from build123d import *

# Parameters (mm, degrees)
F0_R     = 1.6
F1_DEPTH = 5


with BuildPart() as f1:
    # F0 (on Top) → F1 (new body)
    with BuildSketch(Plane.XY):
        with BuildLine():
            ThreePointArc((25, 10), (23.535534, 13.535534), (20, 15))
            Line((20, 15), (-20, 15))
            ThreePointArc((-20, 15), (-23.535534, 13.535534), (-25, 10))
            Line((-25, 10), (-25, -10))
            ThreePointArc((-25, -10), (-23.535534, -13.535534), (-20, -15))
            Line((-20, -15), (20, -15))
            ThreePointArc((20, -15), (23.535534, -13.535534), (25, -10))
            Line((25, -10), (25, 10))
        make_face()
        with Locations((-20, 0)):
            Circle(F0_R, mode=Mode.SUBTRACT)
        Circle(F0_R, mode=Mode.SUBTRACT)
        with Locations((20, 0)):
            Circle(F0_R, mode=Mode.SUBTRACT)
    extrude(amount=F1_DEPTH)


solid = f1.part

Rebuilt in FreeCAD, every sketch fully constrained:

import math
import FreeCAD as App
import Part
import Sketcher

V = App.Vector

doc = App.newDocument("Part")
body = doc.addObject("PartDesign::Body", "Body")

# Sketch on XY plane
sketch1 = doc.addObject("Sketcher::SketchObject", "Sketch")
body.addObject(sketch1)
sketch1.AttachmentSupport = (doc.XY_Plane, [""])
sketch1.MapMode = "FlatFace"
sketch1.addGeometry(Part.ArcOfCircle(Part.Circle(V(20, 10, 0), V(0, 0, 1), 5), math.radians(0), math.radians(90)), False)
sketch1.addGeometry(Part.LineSegment(V(20, 15, 0), V(-20, 15, 0)), False)
sketch1.addGeometry(Part.ArcOfCircle(Part.Circle(V(-20, 10, 0), V(0, 0, 1), 5), math.radians(90), math.radians(180)), False)
sketch1.addGeometry(Part.LineSegment(V(-25, 10, 0), V(-25, -10, 0)), False)
sketch1.addGeometry(Part.ArcOfCircle(Part.Circle(V(-20, -10, 0), V(0, 0, 1), 5), math.radians(180), math.radians(270)), False)
sketch1.addGeometry(Part.LineSegment(V(-20, -15, 0), V(20, -15, 0)), False)
sketch1.addGeometry(Part.ArcOfCircle(Part.Circle(V(20, -10, 0), V(0, 0, 1), 5), math.radians(-90), math.radians(0)), False)
sketch1.addGeometry(Part.LineSegment(V(25, -10, 0), V(25, 10, 0)), False)
sketch1.addGeometry(Part.Circle(V(-20, 0, 0), V(0, 0, 1), 1.6), False)
sketch1.addGeometry(Part.Circle(V(0, 0, 0), V(0, 0, 1), 1.6), False)
sketch1.addGeometry(Part.Circle(V(20, 0, 0), V(0, 0, 1), 1.6), False)
sketch1.addConstraint(Sketcher.Constraint("Tangent", 0, 2, 1, 1))
sketch1.addConstraint(Sketcher.Constraint("Tangent", 1, 2, 2, 1))
sketch1.addConstraint(Sketcher.Constraint("Tangent", 2, 2, 3, 1))
sketch1.addConstraint(Sketcher.Constraint("Tangent", 3, 2, 4, 1))
sketch1.addConstraint(Sketcher.Constraint("Tangent", 4, 2, 5, 1))
sketch1.addConstraint(Sketcher.Constraint("Tangent", 5, 2, 6, 1))
sketch1.addConstraint(Sketcher.Constraint("Tangent", 6, 2, 7, 1))
sketch1.addConstraint(Sketcher.Constraint("Tangent", 7, 2, 0, 1))
sketch1.addConstraint(Sketcher.Constraint("Horizontal", 1))
sketch1.addConstraint(Sketcher.Constraint("Vertical", 3))
sketch1.addConstraint(Sketcher.Constraint("Horizontal", 5))
sketch1.addConstraint(Sketcher.Constraint("Vertical", 7))
sketch1.addConstraint(Sketcher.Constraint("Coincident", 9, 3, -1, 1))
sketch1.addConstraint(Sketcher.Constraint("Equal", 0, 2))
sketch1.addConstraint(Sketcher.Constraint("Equal", 2, 4))
sketch1.addConstraint(Sketcher.Constraint("Equal", 4, 6))
sketch1.addConstraint(Sketcher.Constraint("Equal", 8, 9))
sketch1.addConstraint(Sketcher.Constraint("Equal", 9, 10))
sketch1.addConstraint(Sketcher.Constraint("Symmetric", 0, 3, 4, 3, -1, 1))
sketch1.addConstraint(Sketcher.Constraint("Symmetric", 8, 3, 10, 3, -1, 1))
sketch1.addConstraint(Sketcher.Constraint("PointOnObject", 8, 3, -1))
sketch1.addConstraint(Sketcher.Constraint("Vertical", 4, 3, 8, 3))
sketch1.addConstraint(Sketcher.Constraint("Radius", 0, 5.0))
sketch1.addConstraint(Sketcher.Constraint("Diameter", 8, 3.2))
sketch1.addConstraint(Sketcher.Constraint("DistanceX", 1, 2, 1, 1, 40.0))
sketch1.addConstraint(Sketcher.Constraint("DistanceY", 3, 2, 3, 1, 20.0))
pad1 = doc.addObject("PartDesign::Pad", "Pad")
body.addObject(pad1)
pad1.Profile = sketch1
pad1.Length = 5

doc.recompute()
